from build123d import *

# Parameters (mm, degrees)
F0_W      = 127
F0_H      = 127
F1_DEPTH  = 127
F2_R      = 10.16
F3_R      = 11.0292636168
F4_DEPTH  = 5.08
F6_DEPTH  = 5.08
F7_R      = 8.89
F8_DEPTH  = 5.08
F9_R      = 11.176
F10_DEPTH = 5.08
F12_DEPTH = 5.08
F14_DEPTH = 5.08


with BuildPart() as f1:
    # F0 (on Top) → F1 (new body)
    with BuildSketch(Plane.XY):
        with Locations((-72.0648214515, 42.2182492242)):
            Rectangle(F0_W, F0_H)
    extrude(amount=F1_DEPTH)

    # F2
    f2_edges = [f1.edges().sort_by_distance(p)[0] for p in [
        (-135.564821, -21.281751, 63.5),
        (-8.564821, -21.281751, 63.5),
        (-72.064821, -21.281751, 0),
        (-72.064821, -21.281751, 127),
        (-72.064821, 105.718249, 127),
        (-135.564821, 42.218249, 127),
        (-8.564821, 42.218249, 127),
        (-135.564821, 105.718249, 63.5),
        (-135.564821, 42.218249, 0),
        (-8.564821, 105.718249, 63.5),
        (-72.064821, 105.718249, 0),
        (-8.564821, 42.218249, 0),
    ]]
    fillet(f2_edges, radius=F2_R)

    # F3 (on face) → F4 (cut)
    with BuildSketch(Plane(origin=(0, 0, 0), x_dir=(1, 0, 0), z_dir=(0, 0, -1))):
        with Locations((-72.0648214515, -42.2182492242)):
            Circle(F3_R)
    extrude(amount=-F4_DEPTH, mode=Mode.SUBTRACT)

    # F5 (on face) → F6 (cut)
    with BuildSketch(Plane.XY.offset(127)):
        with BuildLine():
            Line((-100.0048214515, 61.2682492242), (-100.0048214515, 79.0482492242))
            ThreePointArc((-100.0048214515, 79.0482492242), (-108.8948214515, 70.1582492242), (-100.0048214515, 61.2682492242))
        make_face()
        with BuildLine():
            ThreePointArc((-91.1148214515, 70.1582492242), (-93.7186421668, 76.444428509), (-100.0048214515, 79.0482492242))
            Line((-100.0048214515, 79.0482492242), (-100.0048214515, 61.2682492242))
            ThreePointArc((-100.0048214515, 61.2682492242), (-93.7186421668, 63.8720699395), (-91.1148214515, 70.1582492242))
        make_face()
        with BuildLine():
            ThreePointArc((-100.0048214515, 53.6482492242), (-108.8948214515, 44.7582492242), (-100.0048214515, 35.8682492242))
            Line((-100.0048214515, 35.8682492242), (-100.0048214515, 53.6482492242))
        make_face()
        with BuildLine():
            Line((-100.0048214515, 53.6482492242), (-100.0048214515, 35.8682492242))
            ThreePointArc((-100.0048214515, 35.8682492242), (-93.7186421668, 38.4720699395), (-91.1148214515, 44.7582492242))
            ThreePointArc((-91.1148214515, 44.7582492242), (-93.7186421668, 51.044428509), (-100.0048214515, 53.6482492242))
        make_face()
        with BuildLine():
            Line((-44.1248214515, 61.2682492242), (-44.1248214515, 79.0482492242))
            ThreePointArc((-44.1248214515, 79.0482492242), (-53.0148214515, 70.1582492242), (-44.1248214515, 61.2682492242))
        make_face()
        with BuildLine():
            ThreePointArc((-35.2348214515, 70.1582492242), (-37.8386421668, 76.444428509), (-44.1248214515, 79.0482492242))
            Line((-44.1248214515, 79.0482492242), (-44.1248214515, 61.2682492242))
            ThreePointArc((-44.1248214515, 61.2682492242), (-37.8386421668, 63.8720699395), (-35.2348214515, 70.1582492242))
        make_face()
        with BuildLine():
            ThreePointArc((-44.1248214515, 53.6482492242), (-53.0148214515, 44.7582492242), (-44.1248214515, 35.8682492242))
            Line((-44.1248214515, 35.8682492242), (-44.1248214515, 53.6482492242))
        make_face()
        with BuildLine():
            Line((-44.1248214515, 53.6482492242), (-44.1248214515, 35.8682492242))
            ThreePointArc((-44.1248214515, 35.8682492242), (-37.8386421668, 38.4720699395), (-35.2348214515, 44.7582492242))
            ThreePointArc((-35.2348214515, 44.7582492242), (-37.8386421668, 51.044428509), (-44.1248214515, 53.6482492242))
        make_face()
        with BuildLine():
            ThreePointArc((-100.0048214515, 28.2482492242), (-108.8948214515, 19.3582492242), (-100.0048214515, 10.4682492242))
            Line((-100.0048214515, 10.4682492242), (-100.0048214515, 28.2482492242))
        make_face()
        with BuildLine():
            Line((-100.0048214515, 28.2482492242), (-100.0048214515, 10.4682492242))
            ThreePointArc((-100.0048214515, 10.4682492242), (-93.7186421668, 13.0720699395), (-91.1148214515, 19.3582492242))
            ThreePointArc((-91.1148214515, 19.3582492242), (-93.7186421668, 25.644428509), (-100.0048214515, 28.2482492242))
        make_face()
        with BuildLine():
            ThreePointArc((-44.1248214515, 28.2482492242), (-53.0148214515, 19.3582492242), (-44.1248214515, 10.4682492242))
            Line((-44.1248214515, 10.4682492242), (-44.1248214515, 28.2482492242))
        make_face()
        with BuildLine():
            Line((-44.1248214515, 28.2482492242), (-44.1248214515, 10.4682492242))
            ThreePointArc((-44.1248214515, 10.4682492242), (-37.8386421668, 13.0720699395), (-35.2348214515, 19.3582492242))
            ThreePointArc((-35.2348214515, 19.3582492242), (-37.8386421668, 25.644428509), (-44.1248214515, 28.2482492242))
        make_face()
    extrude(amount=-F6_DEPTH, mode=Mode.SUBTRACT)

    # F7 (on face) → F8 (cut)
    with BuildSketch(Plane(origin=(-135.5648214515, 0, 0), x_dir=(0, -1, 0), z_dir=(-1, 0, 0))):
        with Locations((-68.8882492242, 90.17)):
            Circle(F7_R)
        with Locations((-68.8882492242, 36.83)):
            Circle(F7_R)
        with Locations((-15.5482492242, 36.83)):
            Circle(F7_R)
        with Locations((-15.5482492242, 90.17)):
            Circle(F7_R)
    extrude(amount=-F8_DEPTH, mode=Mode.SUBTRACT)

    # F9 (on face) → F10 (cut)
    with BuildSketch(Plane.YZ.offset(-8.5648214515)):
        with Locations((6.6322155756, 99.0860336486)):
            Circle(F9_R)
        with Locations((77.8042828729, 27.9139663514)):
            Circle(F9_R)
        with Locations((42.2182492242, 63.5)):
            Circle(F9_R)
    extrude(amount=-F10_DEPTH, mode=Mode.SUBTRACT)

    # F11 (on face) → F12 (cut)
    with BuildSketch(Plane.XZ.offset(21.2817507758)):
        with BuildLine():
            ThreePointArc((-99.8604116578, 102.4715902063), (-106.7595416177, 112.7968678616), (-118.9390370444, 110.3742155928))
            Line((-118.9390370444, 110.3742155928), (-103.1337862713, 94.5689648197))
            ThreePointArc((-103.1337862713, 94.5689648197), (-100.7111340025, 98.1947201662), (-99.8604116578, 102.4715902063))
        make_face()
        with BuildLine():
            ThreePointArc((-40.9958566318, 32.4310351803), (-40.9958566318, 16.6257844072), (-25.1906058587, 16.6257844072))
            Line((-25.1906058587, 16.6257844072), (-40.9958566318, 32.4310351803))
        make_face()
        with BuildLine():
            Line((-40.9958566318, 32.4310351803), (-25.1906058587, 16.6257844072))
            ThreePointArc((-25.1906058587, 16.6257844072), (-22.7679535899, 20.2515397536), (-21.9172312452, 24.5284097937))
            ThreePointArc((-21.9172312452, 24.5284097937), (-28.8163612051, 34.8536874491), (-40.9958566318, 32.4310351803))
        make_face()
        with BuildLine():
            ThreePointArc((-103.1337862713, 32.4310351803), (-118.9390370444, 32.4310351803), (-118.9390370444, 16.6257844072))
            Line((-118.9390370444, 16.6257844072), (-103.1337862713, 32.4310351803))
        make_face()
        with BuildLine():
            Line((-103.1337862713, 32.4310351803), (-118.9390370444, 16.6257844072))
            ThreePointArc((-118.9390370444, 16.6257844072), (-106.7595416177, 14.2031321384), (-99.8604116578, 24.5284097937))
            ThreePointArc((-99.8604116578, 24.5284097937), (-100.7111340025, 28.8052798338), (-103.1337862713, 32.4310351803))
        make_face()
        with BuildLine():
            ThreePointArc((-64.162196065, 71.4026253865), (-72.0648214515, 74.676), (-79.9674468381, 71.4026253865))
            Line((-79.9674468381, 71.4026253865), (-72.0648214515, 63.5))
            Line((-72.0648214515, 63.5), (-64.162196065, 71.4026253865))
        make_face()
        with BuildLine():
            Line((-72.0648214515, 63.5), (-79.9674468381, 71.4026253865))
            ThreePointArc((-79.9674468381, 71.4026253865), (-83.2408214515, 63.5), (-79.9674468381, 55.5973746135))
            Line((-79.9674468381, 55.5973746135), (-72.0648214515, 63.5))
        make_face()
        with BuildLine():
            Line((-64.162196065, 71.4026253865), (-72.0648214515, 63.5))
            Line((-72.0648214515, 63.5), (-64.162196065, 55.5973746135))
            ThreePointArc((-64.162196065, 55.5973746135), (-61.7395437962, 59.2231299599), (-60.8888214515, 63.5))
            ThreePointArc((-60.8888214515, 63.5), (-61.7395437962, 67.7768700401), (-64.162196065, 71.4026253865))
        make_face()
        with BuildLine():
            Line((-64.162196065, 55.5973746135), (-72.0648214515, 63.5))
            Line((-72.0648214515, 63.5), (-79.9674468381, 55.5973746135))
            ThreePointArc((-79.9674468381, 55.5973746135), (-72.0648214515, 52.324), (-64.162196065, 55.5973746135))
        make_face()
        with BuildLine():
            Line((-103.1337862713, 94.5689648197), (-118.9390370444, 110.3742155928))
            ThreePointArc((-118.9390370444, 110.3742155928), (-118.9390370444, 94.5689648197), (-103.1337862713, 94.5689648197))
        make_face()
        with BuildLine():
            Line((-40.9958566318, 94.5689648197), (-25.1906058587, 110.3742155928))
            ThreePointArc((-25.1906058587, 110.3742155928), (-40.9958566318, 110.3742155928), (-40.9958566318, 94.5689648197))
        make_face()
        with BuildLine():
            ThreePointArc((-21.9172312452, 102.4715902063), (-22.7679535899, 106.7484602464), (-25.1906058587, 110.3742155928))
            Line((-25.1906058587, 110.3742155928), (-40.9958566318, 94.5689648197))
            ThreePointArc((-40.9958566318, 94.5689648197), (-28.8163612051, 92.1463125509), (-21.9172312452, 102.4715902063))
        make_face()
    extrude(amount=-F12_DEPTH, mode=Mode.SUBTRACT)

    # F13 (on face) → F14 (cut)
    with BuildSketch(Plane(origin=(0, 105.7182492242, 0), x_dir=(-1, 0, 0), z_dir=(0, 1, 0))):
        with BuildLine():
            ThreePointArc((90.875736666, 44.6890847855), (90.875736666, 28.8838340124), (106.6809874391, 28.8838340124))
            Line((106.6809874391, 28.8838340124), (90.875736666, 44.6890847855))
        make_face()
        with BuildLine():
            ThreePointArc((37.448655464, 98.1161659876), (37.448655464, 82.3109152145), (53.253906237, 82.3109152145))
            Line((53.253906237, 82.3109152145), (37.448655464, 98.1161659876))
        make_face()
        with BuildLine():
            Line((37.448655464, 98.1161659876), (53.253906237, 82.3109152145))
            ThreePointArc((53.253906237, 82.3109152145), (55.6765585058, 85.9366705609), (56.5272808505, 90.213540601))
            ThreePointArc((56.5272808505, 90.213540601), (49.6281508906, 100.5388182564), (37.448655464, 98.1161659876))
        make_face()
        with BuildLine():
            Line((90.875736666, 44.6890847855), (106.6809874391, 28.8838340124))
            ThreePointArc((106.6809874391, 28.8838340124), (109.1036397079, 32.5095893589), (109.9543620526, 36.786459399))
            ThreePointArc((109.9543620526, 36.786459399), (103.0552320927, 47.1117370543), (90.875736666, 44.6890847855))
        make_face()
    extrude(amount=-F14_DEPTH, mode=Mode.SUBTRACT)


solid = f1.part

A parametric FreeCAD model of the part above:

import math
import FreeCAD as App
import Part
import Sketcher

V = App.Vector
Q = App.Units.Quantity


def add_polygon(sketch, points):
    """Adds a closed chain of lines whose ends are joined by coincident constraints."""
    first, n = sketch.GeometryCount, len(points)
    for a, b in zip(points, points[1:] + points[:1]):
        sketch.addGeometry(Part.LineSegment(App.Vector(*a, 0), App.Vector(*b, 0)), False)
    for i in range(n):
        sketch.addConstraint(Sketcher.Constraint("Coincident", first + i, 2, first + (i + 1) % n, 1))

doc = App.newDocument("Part")
body = doc.addObject("PartDesign::Body", "Body")

sketch1 = body.newObject("Sketcher::SketchObject", "Sketch")
sketch1.AttachmentSupport = (doc.getObject("XY_Plane"), [""])
sketch1.MapMode = "FlatFace"
add_polygon(sketch1, [(-135.564821, 105.718249), (-135.564821, -21.281751), (-8.564821, -21.281751), (-8.564821, 105.718249)])
sketch1.addConstraint([
    Sketcher.Constraint("Vertical", 0),
    Sketcher.Constraint("Horizontal", 1),
    Sketcher.Constraint("Vertical", 2),
    Sketcher.Constraint("Horizontal", 3),
    Sketcher.Constraint("Equal", 3, 0),
    Sketcher.Constraint("DistanceX", 1, 1, 1, 2, Q("5 in")),
    Sketcher.Constraint("DistanceX", 0, 2, -1, 1, 135.564821),
    Sketcher.Constraint("DistanceY", 0, 2, -1, 1, 21.281751),
])
pad1 = body.newObject("PartDesign::Pad", "Pad")
pad1.Profile = sketch1
pad1.Length = Q("5 in")
doc.recompute()

fillet = body.newObject("PartDesign::Fillet", "Fillet")
fillet.Base = (pad1, ["Edge1"])
fillet.UseAllEdges = True
fillet.Radius = Q("0.4 in")

sketch2 = body.newObject("Sketcher::SketchObject", "Sketch001")
sketch2.AttachmentSupport = (doc.getObject("XY_Plane"), [""])
sketch2.MapMode = "FlatFace"
sketch2.addGeometry(Part.Circle(V(-72.064821, 42.218249, 0), V(0, 0, 1), 11.029264), False)
sketch2.addConstraint([
    Sketcher.Constraint("Diameter", 0, 22.058527),
    Sketcher.Constraint("DistanceX", 0, 3, -1, 1, 72.064821),
    Sketcher.Constraint("DistanceY", -1, 1, 0, 3, 42.218249),
])
pocket1 = body.newObject("PartDesign::Pocket", "Pocket")
pocket1.Profile = sketch2
pocket1.Length = Q("0.2 in")
pocket1.Reversed = True

sketch3 = body.newObject("Sketcher::SketchObject", "Sketch002")
sketch3.AttachmentSupport = (doc.getObject("XY_Plane"), [""])
sketch3.MapMode = "FlatFace"
sketch3.AttachmentOffset = App.Placement(V(0, 0, 5 * 25.4), App.Rotation())
sketch3.addGeometry([
    Part.ArcOfCircle(Part.Circle(V(-100.004821, 70.158249, 0), V(0, 0, 1), 8.89), math.radians(-90), math.radians(0)),
    Part.ArcOfCircle(Part.Circle(V(-100.004821, 70.158249, 0), V(0, 0, 1), 8.89), math.radians(0), math.radians(270)),
    Part.ArcOfCircle(Part.Circle(V(-100.004821, 44.758249, 0), V(0, 0, 1), 8.89), math.radians(-90), math.radians(0)),
    Part.ArcOfCircle(Part.Circle(V(-100.004821, 44.758249, 0), V(0, 0, 1), 8.89), math.radians(0), math.radians(270)),
    Part.ArcOfCircle(Part.Circle(V(-44.124821, 70.158249, 0), V(0, 0, 1), 8.89), math.radians(-90), math.radians(0)),
    Part.ArcOfCircle(Part.Circle(V(-44.124821, 70.158249, 0), V(0, 0, 1), 8.89), math.radians(0), math.radians(270)),
    Part.ArcOfCircle(Part.Circle(V(-44.124821, 44.758249, 0), V(0, 0, 1), 8.89), math.radians(-90), math.radians(0)),
    Part.ArcOfCircle(Part.Circle(V(-44.124821, 44.758249, 0), V(0, 0, 1), 8.89), math.radians(0), math.radians(270)),
    Part.ArcOfCircle(Part.Circle(V(-100.004821, 19.358249, 0), V(0, 0, 1), 8.89), math.radians(-90), math.radians(0)),
    Part.ArcOfCircle(Part.Circle(V(-100.004821, 19.358249, 0), V(0, 0, 1), 8.89), math.radians(0), math.radians(270)),
    Part.ArcOfCircle(Part.Circle(V(-44.124821, 19.358249, 0), V(0, 0, 1), 8.89), math.radians(-90), math.radians(0)),
    Part.ArcOfCircle(Part.Circle(V(-44.124821, 19.358249, 0), V(0, 0, 1), 8.89), math.radians(0), math.radians(270)),
], False)
sketch3.addConstraint([
    Sketcher.Constraint("Tangent", 0, 1, 1, 2),
    Sketcher.Constraint("Coincident", 1, 1, 0, 2),
    Sketcher.Constraint("Tangent", 2, 1, 3, 2),
    Sketcher.Constraint("Coincident", 3, 1, 2, 2),
    Sketcher.Constraint("Tangent", 4, 1, 5, 2),
    Sketcher.Constraint("Coincident", 5, 1, 4, 2),
    Sketcher.Constraint("Tangent", 6, 1, 7, 2),
    Sketcher.Constraint("Coincident", 7, 1, 6, 2),
    Sketcher.Constraint("Tangent", 8, 1, 9, 2),
    Sketcher.Constraint("Coincident", 9, 1, 8, 2),
    Sketcher.Constraint("Tangent", 10, 1, 11, 2),
    Sketcher.Constraint("Coincident", 11, 1, 10, 2),
    Sketcher.Constraint("Equal", 1, 2),
    Sketcher.Constraint("Equal", 3, 4),
    Sketcher.Constraint("Equal", 5, 6),
    Sketcher.Constraint("Equal", 7, 8),
    Sketcher.Constraint("Equal", 9, 10),
    Sketcher.Constraint("Horizontal", 1, 3, 4, 3),
    Sketcher.Constraint("Horizontal", 3, 3, 6, 3),
    Sketcher.Constraint("Horizontal", 9, 3, 10, 3),
    Sketcher.Constraint("Horizontal", 5, 3, 1, 1),
    Sketcher.Constraint("Horizontal", 7, 3, 3, 1),
    Sketcher.Constraint("Horizontal", 1, 1, 5, 1),
    Sketcher.Constraint("Horizontal", 3, 1, 7, 1),
    Sketcher.Constraint("Horizontal", 11, 3, 9, 1),
    Sketcher.Constraint("Horizontal", 9, 1, 11, 1),
    Sketcher.Constraint("Vertical", 1, 3, 2, 3),
    Sketcher.Constraint("Vertical", 5, 3, 6, 3),
    Sketcher.Constraint("Vertical", 3, 3, 8, 3),
    Sketcher.Constraint("Vertical", 7, 3, 10, 3),
    Sketcher.Constraint("Vertical", 9, 3, 0, 1),
    Sketcher.Constraint("Vertical", 0, 1, 2, 1),
    Sketcher.Constraint("Vertical", 11, 3, 4, 1),
    Sketcher.Constraint("Vertical", 4, 1, 6, 1),
    Sketcher.Constraint("Vertical", 2, 1, 8, 1),
    Sketcher.Constraint("Vertical", 6, 1, 10, 1),
    Sketcher.Constraint("Radius", 0, Q("0.35 in")),
    Sketcher.Constraint("DistanceY", 2, 3, 0, 3, Q("1 in")),
    Sketcher.Constraint("DistanceY", 8, 3, 2, 3, Q("1 in")),
    Sketcher.Constraint("DistanceX", 1, 3, 4, 3, Q("2.2 in")),
    Sketcher.Constraint("DistanceX", 0, 3, -1, 1, 100.004821),
    Sketcher.Constraint("DistanceY", -1, 1, 0, 3, 70.158249),
])
pocket2 = body.newObject("PartDesign::Pocket", "Pocket001")
pocket2.Profile = sketch3
pocket2.Length = Q("0.2 in")

sketch4 = body.newObject("Sketcher::SketchObject", "Sketch003")
sketch4.AttachmentSupport = (doc.getObject("YZ_Plane"), [""])
sketch4.MapMode = "FlatFace"
sketch4.AttachmentOffset = App.Placement(V(0, 0, -135.564821), App.Rotation())
sketch4.addGeometry([
    Part.Circle(V(68.888249, 90.17, 0), V(0, 0, 1), 8.89),
    Part.Circle(V(68.888249, 36.83, 0), V(0, 0, 1), 8.89),
    Part.Circle(V(15.548249, 36.83, 0), V(0, 0, 1), 8.89),
    Part.Circle(V(15.548249, 90.17, 0), V(0, 0, 1), 8.89),
], False)
sketch4.addConstraint([
    Sketcher.Constraint("Equal", 0, 1),
    Sketcher.Constraint("Equal", 1, 2),
    Sketcher.Constraint("Equal", 2, 3),
    Sketcher.Constraint("Horizontal", 1, 3, 2, 3),
    Sketcher.Constraint("Horizontal", 0, 3, 3, 3),
    Sketcher.Constraint("Vertical", 0, 3, 1, 3),
    Sketcher.Constraint("Vertical", 2, 3, 3, 3),
    Sketcher.Constraint("Diameter", 0, Q("0.7 in")),
    Sketcher.Constraint("DistanceY", 1, 3, 0, 3, Q("2.1 in")),
    Sketcher.Constraint("DistanceX", 2, 3, 1, 3, Q("2.1 in")),
    Sketcher.Constraint("DistanceY", -1, 1, 0, 3, Q("3.55 in")),
    Sketcher.Constraint("DistanceX", -1, 1, 0, 3, 68.888249),
])
pocket3 = body.newObject("PartDesign::Pocket", "Pocket002")
pocket3.Profile = sketch4
pocket3.Length = Q("0.2 in")
pocket3.Reversed = True

sketch5 = body.newObject("Sketcher::SketchObject", "Sketch004")
sketch5.AttachmentSupport = (doc.getObject("YZ_Plane"), [""])
sketch5.MapMode = "FlatFace"
sketch5.AttachmentOffset = App.Placement(V(0, 0, -8.564821), App.Rotation())
sketch5.addGeometry([
    Part.Circle(V(6.632216, 99.086034, 0), V(0, 0, 1), 11.176),
    Part.Circle(V(77.804283, 27.913966, 0), V(0, 0, 1), 11.176),
    Part.Circle(V(42.218249, 63.5, 0), V(0, 0, 1), 11.176),
], False)
sketch5.addConstraint([
    Sketcher.Constraint("Equal", 0, 1),
    Sketcher.Constraint("Equal", 1, 2),
    Sketcher.Constraint("Diameter", 0, Q("0.88 in")),
    Sketcher.Constraint("DistanceY", -1, 1, 2, 3, Q("2.5 in")),
    Sketcher.Constraint("DistanceX", -1, 1, 2, 3, 42.218249),
    Sketcher.Constraint("DistanceX", -1, 1, 0, 3, 6.632216),
    Sketcher.Constraint("DistanceY", -1, 1, 0, 3, 99.086034),
    Sketcher.Constraint("DistanceX", -1, 1, 1, 3, 77.804283),
    Sketcher.Constraint("DistanceY", -1, 1, 1, 3, 27.913966),
])
pocket4 = body.newObject("PartDesign::Pocket", "Pocket003")
pocket4.Profile = sketch5
pocket4.Length = Q("0.2 in")

sketch6 = body.newObject("Sketcher::SketchObject", "Sketch005")
sketch6.AttachmentSupport = (doc.getObject("XZ_Plane"), [""])
sketch6.MapMode = "FlatFace"
sketch6.AttachmentOffset = App.Placement(V(0, 0, 21.281751), App.Rotation())
sketch6.addGeometry([
    Part.ArcOfCircle(Part.Circle(V(-111.036412, 102.47159, 0), V(0, 0, 1), 11.176), math.radians(0), math.radians(135)),
    Part.ArcOfCircle(Part.Circle(V(-111.036412, 102.47159, 0), V(0, 0, 1), 11.176), math.radians(135), math.radians(315)),
    Part.ArcOfCircle(Part.Circle(V(-111.036412, 102.47159, 0), V(0, 0, 1), 11.176), math.radians(-45), math.radians(0)),
    Part.ArcOfCircle(Part.Circle(V(-33.093231, 24.52841, 0), V(0, 0, 1), 11.176), math.radians(135), math.radians(315)),
    Part.ArcOfCircle(Part.Circle(V(-33.093231, 24.52841, 0), V(0, 0, 1), 11.176), math.radians(-45), math.radians(0)),
    Part.ArcOfCircle(Part.Circle(V(-33.093231, 24.52841, 0), V(0, 0, 1), 11.176), math.radians(0), math.radians(135)),
    Part.ArcOfCircle(Part.Circle(V(-111.036412, 24.52841, 0), V(0, 0, 1), 11.176), math.radians(45), math.radians(225)),
    Part.ArcOfCircle(Part.Circle(V(-111.036412, 24.52841, 0), V(0, 0, 1), 11.176), math.radians(-135), math.radians(0)),
    Part.ArcOfCircle(Part.Circle(V(-111.036412, 24.52841, 0), V(0, 0, 1), 11.176), math.radians(0), math.radians(45)),
    Part.ArcOfCircle(Part.Circle(V(-72.064821, 63.5, 0), V(0, 0, 1), 11.176), math.radians(45), math.radians(135)),
    Part.ArcOfCircle(Part.Circle(V(-72.064821, 63.5, 0), V(0, 0, 1), 11.176), math.radians(135), math.radians(225)),
    Part.ArcOfCircle(Part.Circle(V(-72.064821, 63.5, 0), V(0, 0, 1), 11.176), math.radians(-135), math.radians(-45)),
    Part.ArcOfCircle(Part.Circle(V(-72.064821, 63.5, 0), V(0, 0, 1), 11.176), math.radians(-45), math.radians(0)),
    Part.ArcOfCircle(Part.Circle(V(-72.064821, 63.5, 0), V(0, 0, 1), 11.176), math.radians(0), math.radians(45)),
    Part.ArcOfCircle(Part.Circle(V(-33.093231, 102.47159, 0), V(0, 0, 1), 11.176), math.radians(45), math.radians(225)),
    Part.ArcOfCircle(Part.Circle(V(-33.093231, 102.47159, 0), V(0, 0, 1), 11.176), math.radians(-135), math.radians(0)),
    Part.ArcOfCircle(Part.Circle(V(-33.093231, 102.47159, 0), V(0, 0, 1), 11.176), math.radians(0), math.radians(45)),
], False)
sketch6.addConstraint([
    Sketcher.Constraint("Tangent", 0, 2, 1, 1),
    Sketcher.Constraint("Tangent", 1, 2, 2, 1),
    Sketcher.Constraint("Tangent", 2, 2, 0, 1),
    Sketcher.Constraint("Tangent", 3, 2, 4, 1),
    Sketcher.Constraint("Tangent", 4, 2, 5, 1),
    Sketcher.Constraint("Tangent", 5, 2, 3, 1),
    Sketcher.Constraint("Tangent", 6, 2, 7, 1),
    Sketcher.Constraint("Tangent", 7, 2, 8, 1),
    Sketcher.Constraint("Tangent", 8, 2, 6, 1),
    Sketcher.Constraint("Tangent", 9, 2, 10, 1),
    Sketcher.Constraint("Tangent", 10, 2, 11, 1),
    Sketcher.Constraint("Tangent", 11, 2, 12, 1),
    Sketcher.Constraint("Tangent", 12, 2, 13, 1),
    Sketcher.Constraint("Tangent", 13, 2, 9, 1),
    Sketcher.Constraint("Tangent", 14, 2, 15, 1),
    Sketcher.Constraint("Tangent", 15, 2, 16, 1),
    Sketcher.Constraint("Tangent", 16, 2, 14, 1),
    Sketcher.Constraint("Coincident", 11, 3, 9, 3),
    Sketcher.Constraint("Equal", 2, 3),
    Sketcher.Constraint("Equal", 5, 6),
    Sketcher.Constraint("Equal", 8, 9),
    Sketcher.Constraint("Equal", 13, 14),
    Sketcher.Constraint("Horizontal", 5, 3, 6, 3),
    Sketcher.Constraint("Horizontal", 2, 3, 14, 3),
    Sketcher.Constraint("Horizontal", 16, 3, 2, 2),
    Sketcher.Constraint("Horizontal", 8, 3, 4, 2),
    Sketcher.Constraint("Horizontal", 3, 2, 6, 2),
    Sketcher.Constraint("Horizontal", 4, 2, 7, 2),
    Sketcher.Constraint("Horizontal", 5, 2, 8, 2),
    Sketcher.Constraint("Horizontal", 10, 2, 11, 2),
    Sketcher.Constraint("Horizontal", 13, 3, 12, 2),
    Sketcher.Constraint("Horizontal", 9, 2, 13, 2),
    Sketcher.Constraint("Horizontal", 1, 2, 14, 2),
    Sketcher.Constraint("Horizontal", 2, 2, 15, 2),
    Sketcher.Constraint("Horizontal", 0, 2, 16, 2),
    Sketcher.Constraint("Vertical", 2, 3, 6, 3),
    Sketcher.Constraint("Vertical", 5, 3, 14, 3),
    Sketcher.Constraint("Vertical", 0, 2, 6, 2),
    Sketcher.Constraint("Vertical", 1, 2, 8, 2),
    Sketcher.Constraint("Vertical", 9, 2, 10, 2),
    Sketcher.Constraint("Radius", 0, Q("0.44 in")),
    Sketcher.Constraint("DistanceY", -1, 1, 9, 3, Q("2.5 in")),
    Sketcher.Constraint("DistanceX", 0, 3, -1, 1, 111.036412),
    Sketcher.Constraint("DistanceY", -1, 1, 0, 3, 102.47159),
    Sketcher.Constraint("DistanceX", 3, 3, -1, 1, 33.093231),
    Sketcher.Constraint("DistanceY", -1, 1, 3, 3, 24.52841),
    Sketcher.Constraint("DistanceX", 9, 3, -1, 1, 72.064821),
    Sketcher.Constraint("DistanceX", 0, 2, 1, 2, 15.805251),
    Sketcher.Constraint("DistanceX", 13, 2, 14, 2, 23.166339),
    Sketcher.Constraint("DistanceX", 0, 2, -1, 1, 118.939037),
])
pocket5 = body.newObject("PartDesign::Pocket", "Pocket004")
pocket5.Profile = sketch6
pocket5.Length = Q("0.2 in")

sketch7 = body.newObject("Sketcher::SketchObject", "Sketch006")
sketch7.AttachmentSupport = (doc.getObject("XZ_Plane"), [""])
sketch7.MapMode = "FlatFace"
sketch7.AttachmentOffset = App.Placement(V(0, 0, -105.718249), App.Rotation())
sketch7.addGeometry([
    Part.ArcOfCircle(Part.Circle(V(-98.778362, 36.786459, 0), V(0, 0, 1), 11.176), math.radians(-135), math.radians(45)),
    Part.ArcOfCircle(Part.Circle(V(-98.778362, 36.786459, 0), V(0, 0, 1), 11.176), math.radians(180), math.radians(225)),
    Part.ArcOfCircle(Part.Circle(V(-98.778362, 36.786459, 0), V(0, 0, 1), 11.176), math.radians(45), math.radians(180)),
    Part.ArcOfCircle(Part.Circle(V(-45.351281, 90.213541, 0), V(0, 0, 1), 11.176), math.radians(-135), math.radians(45)),
    Part.ArcOfCircle(Part.Circle(V(-45.351281, 90.213541, 0), V(0, 0, 1), 11.176), math.radians(180), math.radians(225)),
    Part.ArcOfCircle(Part.Circle(V(-45.351281, 90.213541, 0), V(0, 0, 1), 11.176), math.radians(45), math.radians(180)),
], False)
sketch7.addConstraint([
    Sketcher.Constraint("Tangent", 0, 1, 1, 2),
    Sketcher.Constraint("Tangent", 1, 1, 2, 2),
    Sketcher.Constraint("Tangent", 2, 1, 0, 2),
    Sketcher.Constraint("Tangent", 3, 1, 4, 2),
    Sketcher.Constraint("Tangent", 4, 1, 5, 2),
    Sketcher.Constraint("Tangent", 5, 1, 3, 2),
    Sketcher.Constraint("Equal", 2, 3),
    Sketcher.Constraint("Horizontal", 2, 3, 1, 1),
    Sketcher.Constraint("Horizontal", 5, 3, 4, 1),
    Sketcher.Constraint("Radius", 0, Q("0.44 in")),
    Sketcher.Constraint("DistanceY", -1, 1, 0, 3, 36.786459),
    Sketcher.Constraint("DistanceX", 3, 3, -1, 1, 45.351281),
    Sketcher.Constraint("DistanceY", -1, 1, 3, 3, 90.213541),
    Sketcher.Constraint("DistanceX", 1, 3, 3, 3, 53.427081),
    Sketcher.Constraint("DistanceX", 0, 1, 2, 1, 15.805251),
    Sketcher.Constraint("DistanceX", 2, 1, 3, 1, 37.62183),
    Sketcher.Constraint("DistanceX", 3, 1, 5, 1, 15.805251),
    Sketcher.Constraint("DistanceX", 0, 1, -1, 1, 106.680987),
])
pocket6 = body.newObject("PartDesign::Pocket", "Pocket005")
pocket6.Profile = sketch7
pocket6.Length = Q("0.2 in")
pocket6.Reversed = True

doc.recompute()
